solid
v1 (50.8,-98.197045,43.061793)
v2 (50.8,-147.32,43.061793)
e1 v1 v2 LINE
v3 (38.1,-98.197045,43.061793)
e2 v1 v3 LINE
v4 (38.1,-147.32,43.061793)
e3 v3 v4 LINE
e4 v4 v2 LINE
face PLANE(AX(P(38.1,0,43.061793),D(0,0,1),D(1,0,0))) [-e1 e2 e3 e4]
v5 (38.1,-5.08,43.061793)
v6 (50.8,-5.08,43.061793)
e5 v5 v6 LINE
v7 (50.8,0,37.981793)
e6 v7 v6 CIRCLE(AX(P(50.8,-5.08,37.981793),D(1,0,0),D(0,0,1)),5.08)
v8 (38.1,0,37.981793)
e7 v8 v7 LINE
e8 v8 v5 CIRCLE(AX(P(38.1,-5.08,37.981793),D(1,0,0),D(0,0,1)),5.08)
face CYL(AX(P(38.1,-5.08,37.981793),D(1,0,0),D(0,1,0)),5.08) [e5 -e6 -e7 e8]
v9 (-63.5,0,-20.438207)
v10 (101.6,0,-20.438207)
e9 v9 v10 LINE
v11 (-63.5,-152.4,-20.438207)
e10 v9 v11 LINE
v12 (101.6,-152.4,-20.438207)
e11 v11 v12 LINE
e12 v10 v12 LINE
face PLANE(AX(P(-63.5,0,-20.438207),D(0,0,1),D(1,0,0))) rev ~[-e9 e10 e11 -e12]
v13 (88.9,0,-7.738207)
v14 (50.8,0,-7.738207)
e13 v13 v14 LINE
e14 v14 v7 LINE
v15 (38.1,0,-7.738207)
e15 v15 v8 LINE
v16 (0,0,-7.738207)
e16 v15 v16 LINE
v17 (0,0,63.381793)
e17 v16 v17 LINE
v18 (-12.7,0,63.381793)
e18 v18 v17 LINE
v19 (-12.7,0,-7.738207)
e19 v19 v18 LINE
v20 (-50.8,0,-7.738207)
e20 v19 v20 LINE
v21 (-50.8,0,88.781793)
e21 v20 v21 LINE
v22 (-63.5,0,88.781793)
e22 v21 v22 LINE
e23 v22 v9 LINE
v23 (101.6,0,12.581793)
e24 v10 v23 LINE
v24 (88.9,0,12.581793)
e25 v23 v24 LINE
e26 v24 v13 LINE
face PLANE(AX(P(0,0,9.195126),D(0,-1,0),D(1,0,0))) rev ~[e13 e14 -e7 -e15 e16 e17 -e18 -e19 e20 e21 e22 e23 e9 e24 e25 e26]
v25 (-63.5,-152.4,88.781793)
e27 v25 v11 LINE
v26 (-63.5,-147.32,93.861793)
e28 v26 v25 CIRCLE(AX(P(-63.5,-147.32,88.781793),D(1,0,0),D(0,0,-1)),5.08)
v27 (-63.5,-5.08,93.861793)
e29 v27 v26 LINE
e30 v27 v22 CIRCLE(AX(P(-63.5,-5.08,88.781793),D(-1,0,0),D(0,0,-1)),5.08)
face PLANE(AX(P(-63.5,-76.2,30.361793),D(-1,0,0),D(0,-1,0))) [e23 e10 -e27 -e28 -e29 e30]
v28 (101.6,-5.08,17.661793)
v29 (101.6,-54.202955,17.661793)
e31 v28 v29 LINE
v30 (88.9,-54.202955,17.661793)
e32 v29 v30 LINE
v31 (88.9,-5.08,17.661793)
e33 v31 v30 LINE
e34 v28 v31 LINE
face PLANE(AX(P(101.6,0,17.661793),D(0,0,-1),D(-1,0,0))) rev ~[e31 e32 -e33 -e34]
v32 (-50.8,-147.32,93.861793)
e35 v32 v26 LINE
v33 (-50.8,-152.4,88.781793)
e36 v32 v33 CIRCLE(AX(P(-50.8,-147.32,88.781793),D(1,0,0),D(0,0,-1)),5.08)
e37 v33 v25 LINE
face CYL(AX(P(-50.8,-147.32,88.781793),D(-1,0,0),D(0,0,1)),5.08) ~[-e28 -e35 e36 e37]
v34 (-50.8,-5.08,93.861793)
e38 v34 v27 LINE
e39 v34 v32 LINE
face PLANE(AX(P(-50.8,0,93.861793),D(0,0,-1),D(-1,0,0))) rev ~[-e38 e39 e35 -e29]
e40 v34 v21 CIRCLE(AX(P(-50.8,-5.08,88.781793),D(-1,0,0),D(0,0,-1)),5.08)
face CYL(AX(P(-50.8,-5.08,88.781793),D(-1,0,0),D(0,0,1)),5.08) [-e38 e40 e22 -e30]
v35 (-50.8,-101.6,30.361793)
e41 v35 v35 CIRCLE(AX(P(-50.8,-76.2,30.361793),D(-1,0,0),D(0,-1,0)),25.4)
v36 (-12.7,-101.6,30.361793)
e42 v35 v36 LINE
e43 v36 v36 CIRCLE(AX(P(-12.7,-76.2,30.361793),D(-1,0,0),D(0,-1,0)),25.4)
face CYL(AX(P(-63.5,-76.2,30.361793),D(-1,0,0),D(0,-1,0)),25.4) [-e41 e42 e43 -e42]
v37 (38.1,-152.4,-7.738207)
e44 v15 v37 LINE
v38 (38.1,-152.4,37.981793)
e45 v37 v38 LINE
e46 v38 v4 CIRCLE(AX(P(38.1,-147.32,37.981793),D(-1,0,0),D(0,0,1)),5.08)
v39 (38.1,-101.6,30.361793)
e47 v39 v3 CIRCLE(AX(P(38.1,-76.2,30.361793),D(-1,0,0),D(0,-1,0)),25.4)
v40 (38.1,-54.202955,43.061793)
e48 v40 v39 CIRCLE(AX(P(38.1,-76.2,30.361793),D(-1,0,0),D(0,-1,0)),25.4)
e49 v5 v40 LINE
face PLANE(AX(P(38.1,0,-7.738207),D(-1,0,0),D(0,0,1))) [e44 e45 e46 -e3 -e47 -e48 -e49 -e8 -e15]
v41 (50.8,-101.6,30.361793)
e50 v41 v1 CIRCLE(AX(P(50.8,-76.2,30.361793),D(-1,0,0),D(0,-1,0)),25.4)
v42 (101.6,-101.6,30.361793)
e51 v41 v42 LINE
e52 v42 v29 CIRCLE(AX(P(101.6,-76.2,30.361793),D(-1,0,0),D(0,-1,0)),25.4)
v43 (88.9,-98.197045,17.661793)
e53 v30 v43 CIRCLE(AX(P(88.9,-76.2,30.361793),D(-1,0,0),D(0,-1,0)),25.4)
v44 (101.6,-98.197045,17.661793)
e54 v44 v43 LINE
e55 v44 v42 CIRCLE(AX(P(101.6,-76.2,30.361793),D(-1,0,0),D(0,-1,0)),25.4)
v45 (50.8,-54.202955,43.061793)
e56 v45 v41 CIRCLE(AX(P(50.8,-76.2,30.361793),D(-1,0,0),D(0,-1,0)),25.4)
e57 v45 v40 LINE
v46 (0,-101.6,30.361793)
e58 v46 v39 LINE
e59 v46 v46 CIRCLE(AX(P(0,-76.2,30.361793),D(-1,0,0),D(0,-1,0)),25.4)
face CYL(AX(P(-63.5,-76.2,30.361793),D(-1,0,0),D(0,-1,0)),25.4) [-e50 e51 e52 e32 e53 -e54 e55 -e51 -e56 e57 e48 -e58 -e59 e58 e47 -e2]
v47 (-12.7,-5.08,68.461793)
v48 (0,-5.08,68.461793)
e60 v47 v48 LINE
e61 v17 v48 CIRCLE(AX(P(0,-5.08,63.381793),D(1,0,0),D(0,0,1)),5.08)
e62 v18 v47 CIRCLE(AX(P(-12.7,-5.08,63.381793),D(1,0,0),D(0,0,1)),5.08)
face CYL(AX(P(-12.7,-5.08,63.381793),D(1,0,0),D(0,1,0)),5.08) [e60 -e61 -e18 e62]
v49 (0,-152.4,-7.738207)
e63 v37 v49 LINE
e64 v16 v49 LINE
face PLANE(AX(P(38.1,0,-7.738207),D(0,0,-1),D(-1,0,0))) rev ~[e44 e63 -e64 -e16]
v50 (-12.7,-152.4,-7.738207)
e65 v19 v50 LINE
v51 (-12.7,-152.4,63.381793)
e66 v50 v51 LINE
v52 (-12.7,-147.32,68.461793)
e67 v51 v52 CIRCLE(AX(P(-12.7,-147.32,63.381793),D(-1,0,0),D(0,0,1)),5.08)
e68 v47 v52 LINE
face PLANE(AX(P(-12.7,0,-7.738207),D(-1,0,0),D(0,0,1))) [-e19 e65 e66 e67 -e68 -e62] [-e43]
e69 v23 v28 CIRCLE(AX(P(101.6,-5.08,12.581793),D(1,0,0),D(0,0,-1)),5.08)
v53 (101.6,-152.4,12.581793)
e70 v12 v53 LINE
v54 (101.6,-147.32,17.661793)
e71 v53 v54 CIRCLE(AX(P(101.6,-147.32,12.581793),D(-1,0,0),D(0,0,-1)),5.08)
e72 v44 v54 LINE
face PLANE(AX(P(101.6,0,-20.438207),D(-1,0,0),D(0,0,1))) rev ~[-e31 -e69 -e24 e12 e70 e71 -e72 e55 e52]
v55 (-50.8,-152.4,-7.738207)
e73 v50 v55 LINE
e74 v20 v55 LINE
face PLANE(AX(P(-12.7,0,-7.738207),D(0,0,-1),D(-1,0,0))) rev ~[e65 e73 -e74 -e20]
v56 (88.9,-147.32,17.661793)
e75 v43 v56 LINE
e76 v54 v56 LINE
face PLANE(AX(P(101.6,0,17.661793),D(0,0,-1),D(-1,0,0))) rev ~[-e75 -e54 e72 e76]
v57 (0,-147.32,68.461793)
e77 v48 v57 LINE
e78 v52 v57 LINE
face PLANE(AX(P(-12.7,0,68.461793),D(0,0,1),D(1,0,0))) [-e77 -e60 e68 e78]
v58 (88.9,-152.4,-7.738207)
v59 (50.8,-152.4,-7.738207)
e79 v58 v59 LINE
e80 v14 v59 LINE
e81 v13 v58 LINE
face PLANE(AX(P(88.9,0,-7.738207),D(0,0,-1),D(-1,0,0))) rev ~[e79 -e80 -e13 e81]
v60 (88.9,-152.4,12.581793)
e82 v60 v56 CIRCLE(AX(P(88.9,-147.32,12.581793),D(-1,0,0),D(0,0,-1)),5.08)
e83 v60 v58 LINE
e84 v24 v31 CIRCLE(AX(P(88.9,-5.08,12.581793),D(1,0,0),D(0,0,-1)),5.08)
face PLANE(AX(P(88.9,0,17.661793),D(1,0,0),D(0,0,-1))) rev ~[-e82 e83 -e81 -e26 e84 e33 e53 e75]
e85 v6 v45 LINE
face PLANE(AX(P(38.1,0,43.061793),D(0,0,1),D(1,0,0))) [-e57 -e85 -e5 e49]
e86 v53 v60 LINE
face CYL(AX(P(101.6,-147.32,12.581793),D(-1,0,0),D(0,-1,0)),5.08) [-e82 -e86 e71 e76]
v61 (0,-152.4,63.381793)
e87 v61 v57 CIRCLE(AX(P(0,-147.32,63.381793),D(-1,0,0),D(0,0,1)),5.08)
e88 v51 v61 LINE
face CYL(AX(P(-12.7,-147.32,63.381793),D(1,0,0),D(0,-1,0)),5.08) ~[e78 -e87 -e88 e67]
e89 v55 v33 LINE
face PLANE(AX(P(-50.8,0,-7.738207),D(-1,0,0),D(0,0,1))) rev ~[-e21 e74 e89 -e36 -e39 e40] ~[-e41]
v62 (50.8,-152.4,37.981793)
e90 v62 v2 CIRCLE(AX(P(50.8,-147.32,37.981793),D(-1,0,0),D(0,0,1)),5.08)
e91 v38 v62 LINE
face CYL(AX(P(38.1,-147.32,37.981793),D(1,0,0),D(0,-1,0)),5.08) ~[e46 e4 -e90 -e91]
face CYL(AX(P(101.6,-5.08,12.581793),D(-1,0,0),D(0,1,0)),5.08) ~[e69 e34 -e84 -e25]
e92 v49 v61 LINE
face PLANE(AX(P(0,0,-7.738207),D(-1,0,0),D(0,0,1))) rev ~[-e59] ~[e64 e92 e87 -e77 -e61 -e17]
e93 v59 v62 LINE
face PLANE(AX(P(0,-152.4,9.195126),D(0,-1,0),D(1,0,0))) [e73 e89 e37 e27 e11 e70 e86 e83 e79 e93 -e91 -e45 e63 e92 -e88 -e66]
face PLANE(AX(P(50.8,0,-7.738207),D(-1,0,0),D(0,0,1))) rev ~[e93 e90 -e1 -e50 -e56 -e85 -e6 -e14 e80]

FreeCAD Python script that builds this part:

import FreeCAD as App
import Part
import Sketcher
from FreeCAD import Vector
Q = App.Units.Quantity


def edges_at(feature, points):
    """Names of the edges that pass closest to the given points."""
    edges = feature.Shape.Edges
    near = lambda p: min(range(len(edges)), key=lambda i: edges[i].distToShape(Part.Vertex(*p))[0])
    return sorted({f"Edge{near(p) + 1}" for p in points})

doc = App.newDocument("Part")
body = doc.addObject("PartDesign::Body", "Body")

# Sketch on XZ plane
sketch1 = body.newObject("Sketcher::SketchObject", "Sketch")
sketch1.AttachmentSupport = (doc.getObject("XZ_Plane"), [""])
sketch1.MapMode = "FlatFace"
sketch1.addGeometry([
    Part.LineSegment(Vector(-51, 94, 0), Vector(-64, 94, 0)),  # 0
    Part.LineSegment(Vector(-64, 94, 0), Vector(-64, -20, 0)),  # 1
    Part.LineSegment(Vector(-64, -20, 0), Vector(102, -20, 0)),  # 2
    Part.LineSegment(Vector(102, -20, 0), Vector(102, 18, 0)),  # 3
    Part.LineSegment(Vector(102, 18, 0), Vector(89, 18, 0)),  # 4
    Part.LineSegment(Vector(89, 18, 0), Vector(89, -8, 0)),  # 5
    Part.LineSegment(Vector(89, -8, 0), Vector(51, -8, 0)),  # 6
    Part.LineSegment(Vector(51, -8, 0), Vector(51, 43, 0)),  # 7
    Part.LineSegment(Vector(51, 43, 0), Vector(38, 43, 0)),  # 8
    Part.LineSegment(Vector(38, 43, 0), Vector(38, -8, 0)),  # 9
    Part.LineSegment(Vector(38, -8, 0), Vector(0, -8, 0)),  # 10
    Part.LineSegment(Vector(0, -8, 0), Vector(0, 68, 0)),  # 11
    Part.LineSegment(Vector(0, 68, 0), Vector(-13, 68, 0)),  # 12
    Part.LineSegment(Vector(-13, 68, 0), Vector(-13, -8, 0)),  # 13
    Part.LineSegment(Vector(-13, -8, 0), Vector(-51, -8, 0)),  # 14
    Part.LineSegment(Vector(-51, -8, 0), Vector(-51, 94, 0)),  # 15
], False)
sketch1.addConstraint([
    Sketcher.Constraint("Coincident", 0, 2, 1, 1),
    Sketcher.Constraint("Coincident", 1, 2, 2, 1),
    Sketcher.Constraint("Coincident", 2, 2, 3, 1),
    Sketcher.Constraint("Coincident", 3, 2, 4, 1),
    Sketcher.Constraint("Coincident", 4, 2, 5, 1),
    Sketcher.Constraint("Coincident", 5, 2, 6, 1),
    Sketcher.Constraint("Coincident", 6, 2, 7, 1),
    Sketcher.Constraint("Coincident", 7, 2, 8, 1),
    Sketcher.Constraint("Coincident", 8, 2, 9, 1),
    Sketcher.Constraint("Coincident", 9, 2, 10, 1),
    Sketcher.Constraint("Coincident", 10, 2, 11, 1),
    Sketcher.Constraint("Coincident", 11, 2, 12, 1),
    Sketcher.Constraint("Coincident", 12, 2, 13, 1),
    Sketcher.Constraint("Coincident", 13, 2, 14, 1),
    Sketcher.Constraint("Coincident", 14, 2, 15, 1),
    Sketcher.Constraint("Coincident", 15, 2, 0, 1),
    Sketcher.Constraint("Horizontal", 0),
    Sketcher.Constraint("Vertical", 1),
    Sketcher.Constraint("Horizontal", 2),
    Sketcher.Constraint("Vertical", 3),
    Sketcher.Constraint("Horizontal", 4),
    Sketcher.Constraint("Vertical", 5),
    Sketcher.Constraint("Horizontal", 6),
    Sketcher.Constraint("Vertical", 7),
    Sketcher.Constraint("Horizontal", 8),
    Sketcher.Constraint("Vertical", 9),
    Sketcher.Constraint("Horizontal", 10),
    Sketcher.Constraint("Vertical", 11),
    Sketcher.Constraint("Horizontal", 12),
    Sketcher.Constraint("Vertical", 13),
    Sketcher.Constraint("Horizontal", 14),
    Sketcher.Constraint("Vertical", 15),
    Sketcher.Constraint("Symmetric", 6, 2, 14, 2, -2),
    Sketcher.Constraint("PointOnObject", 10, 2, -2),
    Sketcher.Constraint("Horizontal", 6, 2, 9, 2),
    Sketcher.Constraint("Equal", 0, 4),
    Sketcher.Constraint("Equal", 4, 8),
    Sketcher.Constraint("Equal", 6, 10),
    Sketcher.Constraint("Equal", 8, 12),
    Sketcher.Constraint("Equal", 14, 3),
    Sketcher.Constraint("DistanceY", 5, 2, 5, 1, Q("1 in")),
    Sketcher.Constraint("DistanceY", 7, 1, 7, 2, Q("2 in")),
    Sketcher.Constraint("DistanceY", 11, 1, 11, 2, Q("3 in")),
    Sketcher.Constraint("DistanceY", 15, 1, 15, 2, Q("4 in")),
    Sketcher.Constraint("DistanceX", 0, 2, 0, 1, Q("0.5 in")),
    Sketcher.Constraint("DistanceX", 2, 1, 2, 2, Q("6.5 in")),
    Sketcher.Constraint("DistanceY", -1, 1, 0, 2, 93.861793),
])
pad1 = body.newObject("PartDesign::Pad", "Pad")
pad1.Profile = sketch1
pad1.Length = Q("6 in")

# Sketch on YZ plane
sketch2 = body.newObject("Sketcher::SketchObject", "Sketch001")
sketch2.AttachmentSupport = (doc.getObject("YZ_Plane"), [""])
sketch2.MapMode = "FlatFace"
sketch2.AttachmentOffset = App.Placement(Vector(0, 0, -2.5 * 25.4), App.Rotation())
sketch2.addGeometry(Part.Circle(Vector(-76, 30, 0), Vector(0, 0, 1), 25), False)
sketch2.addConstraint([
    Sketcher.Constraint("Diameter", 0, Q("2 in")),
    Sketcher.Constraint("DistanceX", 0, 3, -1, 1, Q("3 in")),
    Sketcher.Constraint("DistanceY", -1, 1, 0, 3, 30.361793),
])
pad2 = body.newObject("PartDesign::Pad", "Pad001")
pad2.Profile = sketch2
pad2.Length = Q("6.5 in")
doc.recompute()

fillet = body.newObject("PartDesign::Fillet", "Fillet")
fillet.Base = (pad2, edges_at(pad2, [
    (-57.15, -152.4, 93.862),
    (-57.15, 0, 93.862),
    (-6.35, -152.4, 68.462),
    (-6.35, 0, 68.462),
    (44.45, 0, 43.062),
    (44.45, -152.4, 43.062),
    (95.25, -152.4, 17.662),
    (95.25, 0, 17.662),
]))
fillet.Radius = Q("0.2 in")

doc.recompute()
